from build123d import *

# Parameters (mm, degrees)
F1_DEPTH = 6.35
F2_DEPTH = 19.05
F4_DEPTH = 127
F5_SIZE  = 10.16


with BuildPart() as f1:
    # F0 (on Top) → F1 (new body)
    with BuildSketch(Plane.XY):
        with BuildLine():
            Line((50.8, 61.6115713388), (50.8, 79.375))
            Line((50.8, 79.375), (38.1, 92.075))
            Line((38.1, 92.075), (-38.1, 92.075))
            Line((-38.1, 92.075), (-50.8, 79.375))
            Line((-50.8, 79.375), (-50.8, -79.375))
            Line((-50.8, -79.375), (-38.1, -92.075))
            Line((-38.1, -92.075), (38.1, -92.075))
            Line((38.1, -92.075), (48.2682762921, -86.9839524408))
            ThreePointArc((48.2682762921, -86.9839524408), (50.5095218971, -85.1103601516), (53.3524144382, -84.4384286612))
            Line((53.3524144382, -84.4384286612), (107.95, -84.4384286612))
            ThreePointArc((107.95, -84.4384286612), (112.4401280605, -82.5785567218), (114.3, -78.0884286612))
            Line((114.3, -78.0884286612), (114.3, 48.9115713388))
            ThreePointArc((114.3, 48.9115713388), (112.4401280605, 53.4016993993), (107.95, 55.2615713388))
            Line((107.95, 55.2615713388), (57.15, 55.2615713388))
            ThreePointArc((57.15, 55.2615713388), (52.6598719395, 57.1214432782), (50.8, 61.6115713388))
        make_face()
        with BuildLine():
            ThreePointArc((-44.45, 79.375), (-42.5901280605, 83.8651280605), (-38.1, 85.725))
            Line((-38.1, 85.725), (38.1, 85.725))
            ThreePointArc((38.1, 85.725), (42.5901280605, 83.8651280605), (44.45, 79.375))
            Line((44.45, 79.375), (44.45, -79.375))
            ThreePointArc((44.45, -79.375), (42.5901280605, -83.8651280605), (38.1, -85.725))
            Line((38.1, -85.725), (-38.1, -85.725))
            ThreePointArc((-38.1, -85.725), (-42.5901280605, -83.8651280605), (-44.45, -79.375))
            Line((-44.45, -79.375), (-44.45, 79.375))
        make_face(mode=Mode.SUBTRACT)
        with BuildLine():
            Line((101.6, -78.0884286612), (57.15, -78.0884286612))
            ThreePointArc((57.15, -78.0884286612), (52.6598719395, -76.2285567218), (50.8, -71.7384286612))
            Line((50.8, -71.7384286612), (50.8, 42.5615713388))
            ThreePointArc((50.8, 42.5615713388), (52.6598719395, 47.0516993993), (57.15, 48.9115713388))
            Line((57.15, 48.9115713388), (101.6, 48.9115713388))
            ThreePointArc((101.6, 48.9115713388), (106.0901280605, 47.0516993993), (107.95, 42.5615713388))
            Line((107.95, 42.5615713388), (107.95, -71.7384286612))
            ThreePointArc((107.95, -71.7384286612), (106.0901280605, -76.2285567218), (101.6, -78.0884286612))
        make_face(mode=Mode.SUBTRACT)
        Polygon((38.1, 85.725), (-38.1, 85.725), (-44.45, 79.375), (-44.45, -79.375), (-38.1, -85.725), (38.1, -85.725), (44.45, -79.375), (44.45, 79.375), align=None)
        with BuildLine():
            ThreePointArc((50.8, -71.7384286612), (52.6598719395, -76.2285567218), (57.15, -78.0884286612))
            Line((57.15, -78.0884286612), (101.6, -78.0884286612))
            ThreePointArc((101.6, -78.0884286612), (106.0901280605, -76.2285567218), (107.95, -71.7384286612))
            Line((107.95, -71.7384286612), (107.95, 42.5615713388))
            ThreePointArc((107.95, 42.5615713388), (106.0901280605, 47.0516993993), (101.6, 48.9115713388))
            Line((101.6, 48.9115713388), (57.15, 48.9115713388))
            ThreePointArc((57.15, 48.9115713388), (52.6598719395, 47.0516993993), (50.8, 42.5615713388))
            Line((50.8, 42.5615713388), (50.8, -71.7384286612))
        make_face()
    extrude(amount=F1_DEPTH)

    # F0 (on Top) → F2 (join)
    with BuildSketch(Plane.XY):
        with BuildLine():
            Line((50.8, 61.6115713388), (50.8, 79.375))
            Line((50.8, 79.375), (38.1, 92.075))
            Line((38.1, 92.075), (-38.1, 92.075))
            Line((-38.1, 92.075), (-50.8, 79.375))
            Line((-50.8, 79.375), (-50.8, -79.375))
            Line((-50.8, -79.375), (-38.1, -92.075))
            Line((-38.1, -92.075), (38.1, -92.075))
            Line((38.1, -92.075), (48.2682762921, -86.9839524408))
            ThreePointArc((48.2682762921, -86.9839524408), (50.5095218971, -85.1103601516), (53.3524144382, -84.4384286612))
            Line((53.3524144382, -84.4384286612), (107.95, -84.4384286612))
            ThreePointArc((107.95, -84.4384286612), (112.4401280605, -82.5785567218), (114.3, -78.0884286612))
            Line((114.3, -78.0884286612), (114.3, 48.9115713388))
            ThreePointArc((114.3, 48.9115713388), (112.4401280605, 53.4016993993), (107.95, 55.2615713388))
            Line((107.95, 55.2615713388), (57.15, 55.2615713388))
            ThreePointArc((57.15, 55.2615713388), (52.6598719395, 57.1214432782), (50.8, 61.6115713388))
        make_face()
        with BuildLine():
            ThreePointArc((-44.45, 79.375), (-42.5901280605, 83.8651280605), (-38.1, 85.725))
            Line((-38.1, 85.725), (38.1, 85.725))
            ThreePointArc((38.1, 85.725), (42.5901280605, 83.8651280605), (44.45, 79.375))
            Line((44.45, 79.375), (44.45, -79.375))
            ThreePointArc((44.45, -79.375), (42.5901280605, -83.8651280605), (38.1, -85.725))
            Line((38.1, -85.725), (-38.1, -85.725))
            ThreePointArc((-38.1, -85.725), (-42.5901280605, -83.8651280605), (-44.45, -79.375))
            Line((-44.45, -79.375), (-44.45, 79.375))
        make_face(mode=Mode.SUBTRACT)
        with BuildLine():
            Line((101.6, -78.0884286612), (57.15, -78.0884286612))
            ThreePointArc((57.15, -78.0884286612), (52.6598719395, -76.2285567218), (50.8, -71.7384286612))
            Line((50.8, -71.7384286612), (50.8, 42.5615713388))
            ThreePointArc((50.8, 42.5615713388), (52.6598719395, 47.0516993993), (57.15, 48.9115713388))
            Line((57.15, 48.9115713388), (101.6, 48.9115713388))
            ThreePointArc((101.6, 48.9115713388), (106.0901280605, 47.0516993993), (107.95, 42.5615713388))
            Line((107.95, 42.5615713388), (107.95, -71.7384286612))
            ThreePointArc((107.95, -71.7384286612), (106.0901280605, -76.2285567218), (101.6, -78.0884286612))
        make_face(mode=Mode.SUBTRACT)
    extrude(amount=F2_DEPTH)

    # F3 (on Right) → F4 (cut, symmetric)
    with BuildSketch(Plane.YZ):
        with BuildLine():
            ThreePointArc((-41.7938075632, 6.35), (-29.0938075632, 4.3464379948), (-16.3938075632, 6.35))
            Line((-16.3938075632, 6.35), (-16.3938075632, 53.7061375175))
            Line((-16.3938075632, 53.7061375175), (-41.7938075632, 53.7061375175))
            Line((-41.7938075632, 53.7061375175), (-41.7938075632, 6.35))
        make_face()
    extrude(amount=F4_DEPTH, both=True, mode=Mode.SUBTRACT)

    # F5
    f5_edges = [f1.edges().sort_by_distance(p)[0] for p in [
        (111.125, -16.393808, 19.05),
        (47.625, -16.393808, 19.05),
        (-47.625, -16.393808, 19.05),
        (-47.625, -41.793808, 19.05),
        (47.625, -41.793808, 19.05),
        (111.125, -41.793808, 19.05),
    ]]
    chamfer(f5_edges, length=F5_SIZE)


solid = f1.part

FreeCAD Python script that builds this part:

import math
import FreeCAD as App
import Part
import Sketcher

V = App.Vector
Q = App.Units.Quantity


def edges_at(feature, points):
    """Names of the edges that pass closest to the given points."""
    edges = feature.Shape.Edges
    near = lambda p: min(range(len(edges)), key=lambda i: edges[i].distToShape(Part.Vertex(*p))[0])
    return sorted({f"Edge{near(p) + 1}" for p in points})

doc = App.newDocument("Part")
body = doc.addObject("PartDesign::Body", "Body")

# Sketch on XY plane
sketch1 = body.newObject("Sketcher::SketchObject", "Sketch")
sketch1.AttachmentSupport = (doc.getObject("XY_Plane"), [""])
sketch1.MapMode = "FlatFace"
sketch1.addGeometry([
    Part.LineSegment(V(50.8, 61.611571, 0), V(50.8, 79.375, 0)),  # 0
    Part.LineSegment(V(50.8, 79.375, 0), V(38.1, 92.075, 0)),  # 1
    Part.LineSegment(V(38.1, 92.075, 0), V(-38.1, 92.075, 0)),  # 2
    Part.LineSegment(V(-38.1, 92.075, 0), V(-50.8, 79.375, 0)),  # 3
    Part.LineSegment(V(-50.8, 79.375, 0), V(-50.8, -79.375, 0)),  # 4
    Part.LineSegment(V(-50.8, -79.375, 0), V(-38.1, -92.075, 0)),  # 5
    Part.LineSegment(V(-38.1, -92.075, 0), V(38.1, -92.075, 0)),  # 6
    Part.LineSegment(V(38.1, -92.075, 0), V(48.268276, -86.983952, 0)),  # 7
    Part.ArcOfCircle(Part.Circle(V(53.352414, -90.788429, 0), V(0, 0, 1), 6.35), math.radians(90), math.radians(143.192378)),  # 8
    Part.LineSegment(V(53.352414, -84.438429, 0), V(107.95, -84.438429, 0)),  # 9
    Part.ArcOfCircle(Part.Circle(V(107.95, -78.088429, 0), V(0, 0, 1), 6.35), math.radians(-90), math.radians(0)),  # 10
    Part.LineSegment(V(114.3, -78.088429, 0), V(114.3, 48.911571, 0)),  # 11
    Part.ArcOfCircle(Part.Circle(V(107.95, 48.911571, 0), V(0, 0, 1), 6.35), math.radians(0), math.radians(90)),  # 12
    Part.LineSegment(V(107.95, 55.261571, 0), V(57.15, 55.261571, 0)),  # 13
    Part.ArcOfCircle(Part.Circle(V(57.15, 61.611571, 0), V(0, 0, 1), 6.35), math.radians(180), math.radians(270)),  # 14
    Part.ArcOfCircle(Part.Circle(V(-38.1, -79.375, 0), V(0, 0, 1), 6.35), math.radians(180), math.radians(270)),  # 15
    Part.LineSegment(V(-44.45, -79.375, 0), V(-38.1, -85.725, 0)),  # 16
    Part.ArcOfCircle(Part.Circle(V(-38.1, 79.375, 0), V(0, 0, 1), 6.35), math.radians(90), math.radians(180)),  # 17
    Part.LineSegment(V(-38.1, 85.725, 0), V(-44.45, 79.375, 0)),  # 18
    Part.ArcOfCircle(Part.Circle(V(38.1, -79.375, 0), V(0, 0, 1), 6.35), math.radians(-90), math.radians(0)),  # 19
    Part.LineSegment(V(38.1, -85.725, 0), V(44.45, -79.375, 0)),  # 20
    Part.ArcOfCircle(Part.Circle(V(38.1, 79.375, 0), V(0, 0, 1), 6.35), math.radians(0), math.radians(90)),  # 21
    Part.LineSegment(V(44.45, 79.375, 0), V(38.1, 85.725, 0)),  # 22
], False)
sketch1.addConstraint([
    Sketcher.Constraint("Coincident", 0, 2, 1, 1),
    Sketcher.Constraint("Coincident", 1, 2, 2, 1),
    Sketcher.Constraint("Coincident", 2, 2, 3, 1),
    Sketcher.Constraint("Coincident", 3, 2, 4, 1),
    Sketcher.Constraint("Coincident", 4, 2, 5, 1),
    Sketcher.Constraint("Coincident", 5, 2, 6, 1),
    Sketcher.Constraint("Coincident", 6, 2, 7, 1),
    Sketcher.Constraint("Coincident", 7, 2, 8, 2),
    Sketcher.Constraint("Tangent", 8, 1, 9, 1),
    Sketcher.Constraint("Tangent", 9, 2, 10, 1),
    Sketcher.Constraint("Tangent", 10, 2, 11, 1),
    Sketcher.Constraint("Tangent", 11, 2, 12, 1),
    Sketcher.Constraint("Tangent", 12, 2, 13, 1),
    Sketcher.Constraint("Tangent", 13, 2, 14, 2),
    Sketcher.Constraint("Tangent", 14, 1, 0, 1),
    Sketcher.Constraint("Coincident", 15, 1, 16, 1),
    Sketcher.Constraint("Coincident", 16, 2, 15, 2),
    Sketcher.Constraint("Coincident", 17, 1, 18, 1),
    Sketcher.Constraint("Coincident", 18, 2, 17, 2),
    Sketcher.Constraint("Coincident", 19, 1, 20, 1),
    Sketcher.Constraint("Coincident", 20, 2, 19, 2),
    Sketcher.Constraint("Coincident", 21, 1, 22, 1),
    Sketcher.Constraint("Coincident", 22, 2, 21, 2),
    Sketcher.Constraint("Vertical", 0),
    Sketcher.Constraint("Horizontal", 2),
    Sketcher.Constraint("Vertical", 4),
    Sketcher.Constraint("Horizontal", 6),
    Sketcher.Constraint("Horizontal", 9),
    Sketcher.Constraint("Vertical", 11),
    Sketcher.Constraint("Horizontal", 13),
    Sketcher.Constraint("Equal", 8, 10),
    Sketcher.Constraint("Equal", 10, 12),
    Sketcher.Constraint("Equal", 12, 14),
    Sketcher.Constraint("Equal", 14, 15),
    Sketcher.Constraint("Equal", 15, 17),
    Sketcher.Constraint("Equal", 17, 19),
    Sketcher.Constraint("Equal", 19, 21),
    Sketcher.Constraint("Symmetric", 17, 3, 19, 3, -1, 1),
    Sketcher.Constraint("Symmetric", 15, 3, 21, 3, -1, 1),
    Sketcher.Constraint("Symmetric", 0, 2, 4, 2, -1, 1),
    Sketcher.Constraint("Symmetric", 1, 2, 5, 2, -1, 1),
    Sketcher.Constraint("Symmetric", 15, 3, 19, 3, -2),
    Sketcher.Constraint("Perpendicular", 1, 3),
    Sketcher.Constraint("Parallel", 5, 16),
    Sketcher.Constraint("Perpendicular", 16, 18),
    Sketcher.Constraint("Parallel", 18, 20),
    Sketcher.Constraint("Perpendicular", 20, 22),
    Sketcher.Constraint("Horizontal", 21, 3, 0, 2),
    Sketcher.Constraint("Horizontal", 0, 2, 3, 2),
    Sketcher.Constraint("Horizontal", 4, 2, 15, 1),
    Sketcher.Constraint("Horizontal", 3, 2, 18, 2),
    Sketcher.Constraint("Horizontal", 15, 1, 20, 2),
    Sketcher.Constraint("Horizontal", 18, 2, 21, 1),
    Sketcher.Constraint("Vertical", 21, 3, 1, 2),
    Sketcher.Constraint("Vertical", 17, 3, 2, 2),
    Sketcher.Constraint("Vertical", 1, 2, 6, 2),
    Sketcher.Constraint("DistanceX", 2, 2, 2, 1, Q("3 in")),
    Sketcher.Constraint("DistanceX", 13, 2, 13, 1, Q("2 in")),
    Sketcher.Constraint("DistanceY", 11, 1, 11, 2, Q("5 in")),
    Sketcher.Constraint("Radius", 8, Q("0.25 in")),
    Sketcher.Constraint("DistanceX", -1, 1, 0, 2, Q("2 in")),
    Sketcher.Constraint("DistanceY", 4, 2, 4, 1, Q("6.25 in")),
    Sketcher.Constraint("DistanceY", 0, 1, 0, 2, Q("17.763429 mm")),
    Sketcher.Constraint("Distance", 7, Q("11.37157 mm")),
    Sketcher.Constraint("DistanceX", 9, 1, 9, 2, Q("54.597586 mm")),
])
pad1 = body.newObject("PartDesign::Pad", "Pad")
pad1.Profile = sketch1
pad1.Length = Q("0.25 in")

# Sketch on XY plane
sketch2 = body.newObject("Sketcher::SketchObject", "Sketch001")
sketch2.AttachmentSupport = (doc.getObject("XY_Plane"), [""])
sketch2.MapMode = "FlatFace"
sketch2.addGeometry([
    Part.LineSegment(V(50.8, 61.611571, 0), V(50.8, 79.375, 0)),  # 0
    Part.LineSegment(V(50.8, 79.375, 0), V(38.1, 92.075, 0)),  # 1
    Part.LineSegment(V(38.1, 92.075, 0), V(-38.1, 92.075, 0)),  # 2
    Part.LineSegment(V(-38.1, 92.075, 0), V(-50.8, 79.375, 0)),  # 3
    Part.LineSegment(V(-50.8, 79.375, 0), V(-50.8, -79.375, 0)),  # 4
    Part.LineSegment(V(-50.8, -79.375, 0), V(-38.1, -92.075, 0)),  # 5
    Part.LineSegment(V(-38.1, -92.075, 0), V(38.1, -92.075, 0)),  # 6
    Part.LineSegment(V(38.1, -92.075, 0), V(48.268276, -86.983952, 0)),  # 7
    Part.ArcOfCircle(Part.Circle(V(53.352414, -90.788429, 0), V(0, 0, 1), 6.35), math.radians(90), math.radians(143.192378)),  # 8
    Part.LineSegment(V(53.352414, -84.438429, 0), V(107.95, -84.438429, 0)),  # 9
    Part.ArcOfCircle(Part.Circle(V(107.95, -78.088429, 0), V(0, 0, 1), 6.35), math.radians(-90), math.radians(0)),  # 10
    Part.LineSegment(V(114.3, -78.088429, 0), V(114.3, 48.911571, 0)),  # 11
    Part.ArcOfCircle(Part.Circle(V(107.95, 48.911571, 0), V(0, 0, 1), 6.35), math.radians(0), math.radians(90)),  # 12
    Part.LineSegment(V(107.95, 55.261571, 0), V(57.15, 55.261571, 0)),  # 13
    Part.ArcOfCircle(Part.Circle(V(57.15, 61.611571, 0), V(0, 0, 1), 6.35), math.radians(180), math.radians(270)),  # 14
    Part.ArcOfCircle(Part.Circle(V(101.6, -71.738429, 0), V(0, 0, 1), 6.35), math.radians(-90), math.radians(0)),  # 15
    Part.LineSegment(V(101.6, -78.088429, 0), V(57.15, -78.088429, 0)),  # 16
    Part.ArcOfCircle(Part.Circle(V(57.15, -71.738429, 0), V(0, 0, 1), 6.35), math.radians(180), math.radians(270)),  # 17
    Part.LineSegment(V(50.8, -71.738429, 0), V(50.8, 42.561571, 0)),  # 18
    Part.ArcOfCircle(Part.Circle(V(57.15, 42.561571, 0), V(0, 0, 1), 6.35), math.radians(90), math.radians(180)),  # 19
    Part.LineSegment(V(57.15, 48.911571, 0), V(101.6, 48.911571, 0)),  # 20
    Part.ArcOfCircle(Part.Circle(V(101.6, 42.561571, 0), V(0, 0, 1), 6.35), math.radians(0), math.radians(90)),  # 21
    Part.LineSegment(V(107.95, 42.561571, 0), V(107.95, -71.738429, 0)),  # 22
    Part.LineSegment(V(-44.45, -79.375, 0), V(-44.45, 79.375, 0)),  # 23
    Part.ArcOfCircle(Part.Circle(V(-38.1, 79.375, 0), V(0, 0, 1), 6.35), math.radians(90), math.radians(180)),  # 24
    Part.LineSegment(V(-38.1, 85.725, 0), V(38.1, 85.725, 0)),  # 25
    Part.ArcOfCircle(Part.Circle(V(38.1, 79.375, 0), V(0, 0, 1), 6.35), math.radians(0), math.radians(90)),  # 26
    Part.LineSegment(V(44.45, 79.375, 0), V(44.45, -79.375, 0)),  # 27
    Part.ArcOfCircle(Part.Circle(V(38.1, -79.375, 0), V(0, 0, 1), 6.35), math.radians(-90), math.radians(0)),  # 28
    Part.LineSegment(V(38.1, -85.725, 0), V(-38.1, -85.725, 0)),  # 29
    Part.ArcOfCircle(Part.Circle(V(-38.1, -79.375, 0), V(0, 0, 1), 6.35), math.radians(180), math.radians(270)),  # 30
], False)
sketch2.addConstraint([
    Sketcher.Constraint("Coincident", 0, 2, 1, 1),
    Sketcher.Constraint("Coincident", 1, 2, 2, 1),
    Sketcher.Constraint("Coincident", 2, 2, 3, 1),
    Sketcher.Constraint("Coincident", 3, 2, 4, 1),
    Sketcher.Constraint("Coincident", 4, 2, 5, 1),
    Sketcher.Constraint("Coincident", 5, 2, 6, 1),
    Sketcher.Constraint("Coincident", 6, 2, 7, 1),
    Sketcher.Constraint("Coincident", 7, 2, 8, 2),
    Sketcher.Constraint("Tangent", 8, 1, 9, 1),
    Sketcher.Constraint("Tangent", 9, 2, 10, 1),
    Sketcher.Constraint("Tangent", 10, 2, 11, 1),
    Sketcher.Constraint("Tangent", 11, 2, 12, 1),
    Sketcher.Constraint("Tangent", 12, 2, 13, 1),
    Sketcher.Constraint("Tangent", 13, 2, 14, 2),
    Sketcher.Constraint("Tangent", 14, 1, 0, 1),
    Sketcher.Constraint("Tangent", 15, 1, 16, 1),
    Sketcher.Constraint("Tangent", 16, 2, 17, 2),
    Sketcher.Constraint("Tangent", 17, 1, 18, 1),
    Sketcher.Constraint("Tangent", 18, 2, 19, 2),
    Sketcher.Constraint("Tangent", 19, 1, 20, 1),
    Sketcher.Constraint("Tangent", 20, 2, 21, 2),
    Sketcher.Constraint("Tangent", 21, 1, 22, 1),
    Sketcher.Constraint("Tangent", 22, 2, 15, 2),
    Sketcher.Constraint("Tangent", 23, 2, 24, 2),
    Sketcher.Constraint("Tangent", 24, 1, 25, 1),
    Sketcher.Constraint("Tangent", 25, 2, 26, 2),
    Sketcher.Constraint("Tangent", 26, 1, 27, 1),
    Sketcher.Constraint("Tangent", 27, 2, 28, 2),
    Sketcher.Constraint("Tangent", 28, 1, 29, 1),
    Sketcher.Constraint("Tangent", 29, 2, 30, 2),
    Sketcher.Constraint("Tangent", 30, 1, 23, 1),
    Sketcher.Constraint("Vertical", 0),
    Sketcher.Constraint("Horizontal", 2),
    Sketcher.Constraint("Vertical", 4),
    Sketcher.Constraint("Horizontal", 6),
    Sketcher.Constraint("Horizontal", 9),
    Sketcher.Constraint("Vertical", 11),
    Sketcher.Constraint("Horizontal", 13),
    Sketcher.Constraint("Horizontal", 16),
    Sketcher.Constraint("Vertical", 18),
    Sketcher.Constraint("Horizontal", 20),
    Sketcher.Constraint("Vertical", 22),
    Sketcher.Constraint("Vertical", 23),
    Sketcher.Constraint("Horizontal", 25),
    Sketcher.Constraint("Vertical", 27),
    Sketcher.Constraint("Horizontal", 29),
    Sketcher.Constraint("Equal", 8, 10),
    Sketcher.Constraint("Equal", 10, 12),
    Sketcher.Constraint("Equal", 12, 14),
    Sketcher.Constraint("Equal", 14, 15),
    Sketcher.Constraint("Equal", 15, 17),
    Sketcher.Constraint("Equal", 17, 19),
    Sketcher.Constraint("Equal", 19, 21),
    Sketcher.Constraint("Equal", 21, 24),
    Sketcher.Constraint("Equal", 24, 26),
    Sketcher.Constraint("Equal", 26, 28),
    Sketcher.Constraint("Equal", 28, 30),
    Sketcher.Constraint("Symmetric", 24, 3, 28, 3, -1, 1),
    Sketcher.Constraint("Symmetric", 0, 2, 4, 2, -1, 1),
    Sketcher.Constraint("Symmetric", 1, 2, 5, 2, -1, 1),
    Sketcher.Constraint("Perpendicular", 1, 3),
    Sketcher.Constraint("Horizontal", 26, 3, 0, 2),
    Sketcher.Constraint("Horizontal", 0, 2, 3, 2),
    Sketcher.Constraint("Horizontal", 10, 2, 15, 1),
    Sketcher.Constraint("Horizontal", 11, 2, 19, 1),
    Sketcher.Constraint("Vertical", 14, 3, 17, 3),
    Sketcher.Constraint("Vertical", 28, 3, 1, 2),
    Sketcher.Constraint("Vertical", 30, 3, 2, 2),
    Sketcher.Constraint("Vertical", 1, 2, 6, 2),
    Sketcher.Constraint("Vertical", 12, 2, 21, 1),
    Sketcher.Constraint("DistanceX", 2, 2, 2, 1, Q("3 in")),
    Sketcher.Constraint("DistanceX", 13, 2, 13, 1, Q("2 in")),
    Sketcher.Constraint("DistanceY", 11, 1, 11, 2, Q("5 in")),
    Sketcher.Constraint("Radius", 8, Q("0.25 in")),
    Sketcher.Constraint("DistanceX", -1, 1, 15, 3, Q("4 in")),
    Sketcher.Constraint("DistanceY", 4, 2, 4, 1, Q("6.25 in")),
    Sketcher.Constraint("DistanceY", 0, 1, 0, 2, Q("17.763429 mm")),
    Sketcher.Constraint("Distance", 7, Q("11.37157 mm")),
    Sketcher.Constraint("DistanceX", 9, 1, 9, 2, Q("54.597586 mm")),
])
pad2 = body.newObject("PartDesign::Pad", "Pad001")
pad2.Profile = sketch2
pad2.Length = Q("0.75 in")

# Sketch on YZ plane
sketch3 = body.newObject("Sketcher::SketchObject", "Sketch002")
sketch3.AttachmentSupport = (doc.getObject("YZ_Plane"), [""])
sketch3.MapMode = "FlatFace"
sketch3.addGeometry([
    Part.ArcOfCircle(Part.Circle(V(-29.093808, 45.599032, 0), V(0, 0, 1), 41.252594), math.radians(-107.930277), math.radians(-72.069723)),
    Part.LineSegment(V(-16.393808, 6.35, 0), V(-16.393808, 53.706138, 0)),
    Part.LineSegment(V(-16.393808, 53.706138, 0), V(-41.793808, 53.706138, 0)),
    Part.LineSegment(V(-41.793808, 53.706138, 0), V(-41.793808, 6.35, 0)),
], False)
sketch3.addConstraint([
    Sketcher.Constraint("Coincident", 0, 2, 1, 1),
    Sketcher.Constraint("Coincident", 1, 2, 2, 1),
    Sketcher.Constraint("Coincident", 2, 2, 3, 1),
    Sketcher.Constraint("Coincident", 3, 2, 0, 1),
    Sketcher.Constraint("Vertical", 1),
    Sketcher.Constraint("Horizontal", 2),
    Sketcher.Constraint("Vertical", 3),
    Sketcher.Constraint("Horizontal", 0, 2, 3, 2),
    Sketcher.Constraint("DistanceX", 2, 2, 2, 1, Q("1 in")),
    Sketcher.Constraint("DistanceY", -1, 1, 0, 2, Q("0.25 in")),
    Sketcher.Constraint("Radius", 0, Q("41.252594 mm")),
    Sketcher.Constraint("DistanceY", 1, 1, 1, 2, Q("47.356138 mm")),
    Sketcher.Constraint("DistanceX", 0, 3, -1, 1, Q("29.093808 mm")),
])
pocket1 = body.newObject("PartDesign::Pocket", "Pocket")
pocket1.Profile = sketch3
pocket1.Length = Q("10 in")
pocket1.Midplane = True
doc.recompute()

chamfer = body.newObject("PartDesign::Chamfer", "Chamfer")
chamfer.Base = (pocket1, edges_at(pocket1, [
    (111.125, -16.394, 19.05),
    (47.625, -16.394, 19.05),
    (-47.625, -16.394, 19.05),
    (-47.625, -41.794, 19.05),
    (47.625, -41.794, 19.05),
    (111.125, -41.794, 19.05),
]))
chamfer.Size = Q("0.4 in")

doc.recompute()
